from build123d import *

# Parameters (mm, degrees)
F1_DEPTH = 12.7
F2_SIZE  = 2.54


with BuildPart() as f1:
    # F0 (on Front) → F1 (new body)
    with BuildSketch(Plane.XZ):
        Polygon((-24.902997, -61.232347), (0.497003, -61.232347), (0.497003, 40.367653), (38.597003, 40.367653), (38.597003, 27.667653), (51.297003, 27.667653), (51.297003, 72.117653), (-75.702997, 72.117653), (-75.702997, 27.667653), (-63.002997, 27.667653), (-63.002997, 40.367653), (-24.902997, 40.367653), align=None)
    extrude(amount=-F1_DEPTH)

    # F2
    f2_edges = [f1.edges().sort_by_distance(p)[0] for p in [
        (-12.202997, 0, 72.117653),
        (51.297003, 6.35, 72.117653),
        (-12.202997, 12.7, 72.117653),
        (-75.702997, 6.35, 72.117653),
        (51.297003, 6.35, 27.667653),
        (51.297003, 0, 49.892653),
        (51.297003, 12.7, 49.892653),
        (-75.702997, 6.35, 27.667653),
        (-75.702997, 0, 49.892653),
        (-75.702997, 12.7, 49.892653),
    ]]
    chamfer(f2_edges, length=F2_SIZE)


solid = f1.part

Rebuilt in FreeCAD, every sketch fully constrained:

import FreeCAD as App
import Part
import Sketcher

V = App.Vector
Q = App.Units.Quantity


def edges_at(feature, points):
    """Names of the edges that pass closest to the given points."""
    edges = feature.Shape.Edges
    near = lambda p: min(range(len(edges)), key=lambda i: edges[i].distToShape(Part.Vertex(*p))[0])
    return sorted({f"Edge{near(p) + 1}" for p in points})

doc = App.newDocument("Part")
body = doc.addObject("PartDesign::Body", "Body")

# Sketch on XZ plane
sketch1 = doc.addObject("Sketcher::SketchObject", "Sketch")
body.addObject(sketch1)
sketch1.AttachmentSupport = (doc.XZ_Plane, [""])
sketch1.MapMode = "FlatFace"
sketch1.addGeometry(Part.LineSegment(V(-25, -61, 0), V(0, -61, 0)), False)
sketch1.addGeometry(Part.LineSegment(V(0, -61, 0), V(0, 40, 0)), False)
sketch1.addGeometry(Part.LineSegment(V(0, 40, 0), V(39, 40, 0)), False)
sketch1.addGeometry(Part.LineSegment(V(39, 40, 0), V(39, 28, 0)), False)
sketch1.addGeometry(Part.LineSegment(V(39, 28, 0), V(51, 28, 0)), False)
sketch1.addGeometry(Part.LineSegment(V(51, 28, 0), V(51, 72, 0)), False)
sketch1.addGeometry(Part.LineSegment(V(51, 72, 0), V(-76, 72, 0)), False)
sketch1.addGeometry(Part.LineSegment(V(-76, 72, 0), V(-76, 28, 0)), False)
sketch1.addGeometry(Part.LineSegment(V(-76, 28, 0), V(-63, 28, 0)), False)
sketch1.addGeometry(Part.LineSegment(V(-63, 28, 0), V(-63, 40, 0)), False)
sketch1.addGeometry(Part.LineSegment(V(-63, 40, 0), V(-25, 40, 0)), False)
sketch1.addGeometry(Part.LineSegment(V(-25, 40, 0), V(-25, -61, 0)), False)
sketch1.addConstraint(Sketcher.Constraint("Coincident", 0, 2, 1, 1))
sketch1.addConstraint(Sketcher.Constraint("Coincident", 1, 2, 2, 1))
sketch1.addConstraint(Sketcher.Constraint("Coincident", 2, 2, 3, 1))
sketch1.addConstraint(Sketcher.Constraint("Coincident", 3, 2, 4, 1))
sketch1.addConstraint(Sketcher.Constraint("Coincident", 4, 2, 5, 1))
sketch1.addConstraint(Sketcher.Constraint("Coincident", 5, 2, 6, 1))
sketch1.addConstraint(Sketcher.Constraint("Coincident", 6, 2, 7, 1))
sketch1.addConstraint(Sketcher.Constraint("Coincident", 7, 2, 8, 1))
sketch1.addConstraint(Sketcher.Constraint("Coincident", 8, 2, 9, 1))
sketch1.addConstraint(Sketcher.Constraint("Coincident", 9, 2, 10, 1))
sketch1.addConstraint(Sketcher.Constraint("Coincident", 10, 2, 11, 1))
sketch1.addConstraint(Sketcher.Constraint("Coincident", 11, 2, 0, 1))
sketch1.addConstraint(Sketcher.Constraint("Horizontal", 0))
sketch1.addConstraint(Sketcher.Constraint("Vertical", 1))
sketch1.addConstraint(Sketcher.Constraint("Horizontal", 2))
sketch1.addConstraint(Sketcher.Constraint("Vertical", 3))
sketch1.addConstraint(Sketcher.Constraint("Horizontal", 4))
sketch1.addConstraint(Sketcher.Constraint("Vertical", 5))
sketch1.addConstraint(Sketcher.Constraint("Horizontal", 6))
sketch1.addConstraint(Sketcher.Constraint("Vertical", 7))
sketch1.addConstraint(Sketcher.Constraint("Horizontal", 8))
sketch1.addConstraint(Sketcher.Constraint("Vertical", 9))
sketch1.addConstraint(Sketcher.Constraint("Horizontal", 10))
sketch1.addConstraint(Sketcher.Constraint("Vertical", 11))
sketch1.addConstraint(Sketcher.Constraint("Horizontal", 4, 2, 7, 2))
sketch1.addConstraint(Sketcher.Constraint("Horizontal", 2, 2, 9, 2))
sketch1.addConstraint(Sketcher.Constraint("Equal", 4, 8))
sketch1.addConstraint(Sketcher.Constraint("Equal", 2, 10))
sketch1.addConstraint(Sketcher.Constraint("Equal", 8, 3))
sketch1.addConstraint(Sketcher.Constraint("DistanceX", 0, 1, 0, 2, Q("1 in")))
sketch1.addConstraint(Sketcher.Constraint("DistanceX", 6, 2, 6, 1, Q("5 in")))
sketch1.addConstraint(Sketcher.Constraint("DistanceY", 1, 1, 1, 2, Q("4 in")))
sketch1.addConstraint(Sketcher.Constraint("DistanceX", 2, 1, 2, 2, Q("1.5 in")))
sketch1.addConstraint(Sketcher.Constraint("DistanceY", 5, 1, 5, 2, Q("1.75 in")))
sketch1.addConstraint(Sketcher.Constraint("DistanceX", -1, 1, 0, 2, 0.497003))
sketch1.addConstraint(Sketcher.Constraint("DistanceY", 0, 2, -1, 1, 61.232347))
pad1 = doc.addObject("PartDesign::Pad", "Pad")
body.addObject(pad1)
pad1.Profile = sketch1
pad1.Length = Q("0.5 in")
pad1.Reversed = True
doc.recompute()

chamfer = doc.addObject("PartDesign::Chamfer", "Chamfer")
body.addObject(chamfer)
chamfer.Base = (pad1, edges_at(pad1, [
    (-12.203, 0, 72.118),
    (51.297, 6.35, 72.118),
    (-12.203, 12.7, 72.118),
    (-75.703, 6.35, 72.118),
    (51.297, 6.35, 27.668),
    (51.297, 0, 49.893),
    (51.297, 12.7, 49.893),
    (-75.703, 6.35, 27.668),
    (-75.703, 0, 49.893),
    (-75.703, 12.7, 49.893),
]))
chamfer.Size = Q("0.1 in")

doc.recompute()
